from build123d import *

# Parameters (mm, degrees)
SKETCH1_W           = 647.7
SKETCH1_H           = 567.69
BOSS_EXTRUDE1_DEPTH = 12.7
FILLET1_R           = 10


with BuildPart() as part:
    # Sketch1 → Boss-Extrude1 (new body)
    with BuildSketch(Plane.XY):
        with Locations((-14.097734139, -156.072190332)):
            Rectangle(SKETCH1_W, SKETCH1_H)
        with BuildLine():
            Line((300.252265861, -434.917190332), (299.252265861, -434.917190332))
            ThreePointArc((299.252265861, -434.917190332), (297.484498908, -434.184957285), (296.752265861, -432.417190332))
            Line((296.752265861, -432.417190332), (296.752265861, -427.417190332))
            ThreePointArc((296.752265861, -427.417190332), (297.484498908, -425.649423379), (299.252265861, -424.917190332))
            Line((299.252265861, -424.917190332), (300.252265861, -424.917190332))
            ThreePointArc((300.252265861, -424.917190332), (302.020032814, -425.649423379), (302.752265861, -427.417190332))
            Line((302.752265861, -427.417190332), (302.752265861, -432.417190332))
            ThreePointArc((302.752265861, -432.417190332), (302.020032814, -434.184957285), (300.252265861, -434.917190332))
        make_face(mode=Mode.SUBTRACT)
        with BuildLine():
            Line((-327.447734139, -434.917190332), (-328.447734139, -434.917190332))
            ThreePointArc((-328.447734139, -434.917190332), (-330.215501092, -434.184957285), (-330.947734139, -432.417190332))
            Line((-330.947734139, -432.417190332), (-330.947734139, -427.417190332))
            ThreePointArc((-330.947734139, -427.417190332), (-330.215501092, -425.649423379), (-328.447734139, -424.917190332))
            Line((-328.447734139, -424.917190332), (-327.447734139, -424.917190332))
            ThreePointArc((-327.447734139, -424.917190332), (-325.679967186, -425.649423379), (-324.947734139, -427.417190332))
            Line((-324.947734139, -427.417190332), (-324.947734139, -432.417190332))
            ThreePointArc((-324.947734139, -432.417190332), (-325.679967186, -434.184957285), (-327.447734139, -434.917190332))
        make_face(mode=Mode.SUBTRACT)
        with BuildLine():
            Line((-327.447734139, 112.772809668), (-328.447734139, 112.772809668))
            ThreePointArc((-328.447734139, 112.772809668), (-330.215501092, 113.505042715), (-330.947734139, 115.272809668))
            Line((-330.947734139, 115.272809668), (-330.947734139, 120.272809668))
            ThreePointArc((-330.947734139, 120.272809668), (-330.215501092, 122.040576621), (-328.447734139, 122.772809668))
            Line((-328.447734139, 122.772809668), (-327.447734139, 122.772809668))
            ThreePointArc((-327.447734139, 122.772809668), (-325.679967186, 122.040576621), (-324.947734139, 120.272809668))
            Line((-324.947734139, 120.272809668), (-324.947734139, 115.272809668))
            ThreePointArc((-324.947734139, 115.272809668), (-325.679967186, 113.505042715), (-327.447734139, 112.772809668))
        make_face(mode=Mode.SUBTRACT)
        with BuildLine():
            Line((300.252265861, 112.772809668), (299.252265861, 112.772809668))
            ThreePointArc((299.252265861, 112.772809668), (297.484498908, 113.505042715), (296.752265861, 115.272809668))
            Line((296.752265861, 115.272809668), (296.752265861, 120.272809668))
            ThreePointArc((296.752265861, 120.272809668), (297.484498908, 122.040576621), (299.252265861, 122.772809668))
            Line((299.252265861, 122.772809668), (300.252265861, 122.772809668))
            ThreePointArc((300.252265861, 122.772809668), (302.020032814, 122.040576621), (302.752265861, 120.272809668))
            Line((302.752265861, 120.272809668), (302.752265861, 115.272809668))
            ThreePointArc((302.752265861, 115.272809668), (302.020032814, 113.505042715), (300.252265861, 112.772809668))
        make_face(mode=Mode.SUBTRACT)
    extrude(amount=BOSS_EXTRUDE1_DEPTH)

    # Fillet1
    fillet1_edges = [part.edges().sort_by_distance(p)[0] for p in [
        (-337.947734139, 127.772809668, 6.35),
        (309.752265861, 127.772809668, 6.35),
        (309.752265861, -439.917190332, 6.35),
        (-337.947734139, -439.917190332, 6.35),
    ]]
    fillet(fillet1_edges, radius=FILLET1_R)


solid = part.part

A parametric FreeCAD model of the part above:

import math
import FreeCAD as App
import Part
import Sketcher

V = App.Vector


def edges_at(feature, points):
    """Names of the edges that pass closest to the given points."""
    edges = feature.Shape.Edges
    near = lambda p: min(range(len(edges)), key=lambda i: edges[i].distToShape(Part.Vertex(*p))[0])
    return sorted({f"Edge{near(p) + 1}" for p in points})

doc = App.newDocument("Part")
body = doc.addObject("PartDesign::Body", "Body")

sketch1 = body.newObject("Sketcher::SketchObject", "Sketch")
sketch1.AttachmentSupport = (doc.getObject("XY_Plane"), [""])
sketch1.MapMode = "FlatFace"
sketch1.addGeometry([
    Part.LineSegment(V(-337.9, 127.8, 0), V(-337.9, -439.9, 0)),
    Part.LineSegment(V(-337.9, -439.9, 0), V(309.8, -439.9, 0)),
    Part.LineSegment(V(309.8, -439.9, 0), V(309.8, 127.8, 0)),
    Part.LineSegment(V(309.8, 127.8, 0), V(-337.9, 127.8, 0)),
    Part.ArcOfCircle(Part.Circle(V(-327.4, -432.4, 0), V(0, 0, 1), 2.5), math.radians(-90), math.radians(0)),
    Part.LineSegment(V(-327.4, -434.9, 0), V(-328.4, -434.9, 0)),
    Part.ArcOfCircle(Part.Circle(V(-328.4, -432.4, 0), V(0, 0, 1), 2.5), math.radians(180), math.radians(270)),
    Part.LineSegment(V(-330.9, -432.4, 0), V(-330.9, -427.4, 0)),
    Part.ArcOfCircle(Part.Circle(V(-328.4, -427.4, 0), V(0, 0, 1), 2.5), math.radians(90), math.radians(180)),
    Part.LineSegment(V(-328.4, -424.9, 0), V(-327.4, -424.9, 0)),
    Part.ArcOfCircle(Part.Circle(V(-327.4, -427.4, 0), V(0, 0, 1), 2.5), math.radians(0), math.radians(90)),
    Part.LineSegment(V(-324.9, -427.4, 0), V(-324.9, -432.4, 0)),
    Part.ArcOfCircle(Part.Circle(V(300.3, -432.4, 0), V(0, 0, 1), 2.5), math.radians(-90), math.radians(0)),
    Part.LineSegment(V(300.3, -434.9, 0), V(299.3, -434.9, 0)),
    Part.ArcOfCircle(Part.Circle(V(299.3, -432.4, 0), V(0, 0, 1), 2.5), math.radians(180), math.radians(270)),
    Part.LineSegment(V(296.8, -432.4, 0), V(296.8, -427.4, 0)),
    Part.ArcOfCircle(Part.Circle(V(299.3, -427.4, 0), V(0, 0, 1), 2.5), math.radians(90), math.radians(180)),
    Part.LineSegment(V(299.3, -424.9, 0), V(300.3, -424.9, 0)),
    Part.ArcOfCircle(Part.Circle(V(300.3, -427.4, 0), V(0, 0, 1), 2.5), math.radians(0), math.radians(90)),
    Part.LineSegment(V(302.8, -427.4, 0), V(302.8, -432.4, 0)),
    Part.ArcOfCircle(Part.Circle(V(-327.4, 115.3, 0), V(0, 0, 1), 2.5), math.radians(-90), math.radians(0)),
    Part.LineSegment(V(-327.4, 112.8, 0), V(-328.4, 112.8, 0)),
    Part.ArcOfCircle(Part.Circle(V(-328.4, 115.3, 0), V(0, 0, 1), 2.5), math.radians(180), math.radians(270)),
    Part.LineSegment(V(-330.9, 115.3, 0), V(-330.9, 120.3, 0)),
    Part.ArcOfCircle(Part.Circle(V(-328.4, 120.3, 0), V(0, 0, 1), 2.5), math.radians(90), math.radians(180)),
    Part.LineSegment(V(-328.4, 122.8, 0), V(-327.4, 122.8, 0)),
    Part.ArcOfCircle(Part.Circle(V(-327.4, 120.3, 0), V(0, 0, 1), 2.5), math.radians(0), math.radians(90)),
    Part.LineSegment(V(-324.9, 120.3, 0), V(-324.9, 115.3, 0)),
    Part.ArcOfCircle(Part.Circle(V(300.3, 115.3, 0), V(0, 0, 1), 2.5), math.radians(-90), math.radians(0)),
    Part.LineSegment(V(300.3, 112.8, 0), V(299.3, 112.8, 0)),
    Part.ArcOfCircle(Part.Circle(V(299.3, 115.3, 0), V(0, 0, 1), 2.5), math.radians(180), math.radians(270)),
    Part.LineSegment(V(296.8, 115.3, 0), V(296.8, 120.3, 0)),
    Part.ArcOfCircle(Part.Circle(V(299.3, 120.3, 0), V(0, 0, 1), 2.5), math.radians(90), math.radians(180)),
    Part.LineSegment(V(299.3, 122.8, 0), V(300.3, 122.8, 0)),
    Part.ArcOfCircle(Part.Circle(V(300.3, 120.3, 0), V(0, 0, 1), 2.5), math.radians(0), math.radians(90)),
    Part.LineSegment(V(302.8, 120.3, 0), V(302.8, 115.3, 0)),
], False)
sketch1.addConstraint([
    Sketcher.Constraint("Coincident", 0, 2, 1, 1),
    Sketcher.Constraint("Coincident", 1, 2, 2, 1),
    Sketcher.Constraint("Coincident", 2, 2, 3, 1),
    Sketcher.Constraint("Coincident", 3, 2, 0, 1),
    Sketcher.Constraint("Tangent", 4, 1, 5, 1),
    Sketcher.Constraint("Tangent", 5, 2, 6, 2),
    Sketcher.Constraint("Tangent", 6, 1, 7, 1),
    Sketcher.Constraint("Tangent", 7, 2, 8, 2),
    Sketcher.Constraint("Tangent", 8, 1, 9, 1),
    Sketcher.Constraint("Tangent", 9, 2, 10, 2),
    Sketcher.Constraint("Tangent", 10, 1, 11, 1),
    Sketcher.Constraint("Tangent", 11, 2, 4, 2),
    Sketcher.Constraint("Tangent", 12, 1, 13, 1),
    Sketcher.Constraint("Tangent", 13, 2, 14, 2),
    Sketcher.Constraint("Tangent", 14, 1, 15, 1),
    Sketcher.Constraint("Tangent", 15, 2, 16, 2),
    Sketcher.Constraint("Tangent", 16, 1, 17, 1),
    Sketcher.Constraint("Tangent", 17, 2, 18, 2),
    Sketcher.Constraint("Tangent", 18, 1, 19, 1),
    Sketcher.Constraint("Tangent", 19, 2, 12, 2),
    Sketcher.Constraint("Tangent", 20, 1, 21, 1),
    Sketcher.Constraint("Tangent", 21, 2, 22, 2),
    Sketcher.Constraint("Tangent", 22, 1, 23, 1),
    Sketcher.Constraint("Tangent", 23, 2, 24, 2),
    Sketcher.Constraint("Tangent", 24, 1, 25, 1),
    Sketcher.Constraint("Tangent", 25, 2, 26, 2),
    Sketcher.Constraint("Tangent", 26, 1, 27, 1),
    Sketcher.Constraint("Tangent", 27, 2, 20, 2),
    Sketcher.Constraint("Tangent", 28, 1, 29, 1),
    Sketcher.Constraint("Tangent", 29, 2, 30, 2),
    Sketcher.Constraint("Tangent", 30, 1, 31, 1),
    Sketcher.Constraint("Tangent", 31, 2, 32, 2),
    Sketcher.Constraint("Tangent", 32, 1, 33, 1),
    Sketcher.Constraint("Tangent", 33, 2, 34, 2),
    Sketcher.Constraint("Tangent", 34, 1, 35, 1),
    Sketcher.Constraint("Tangent", 35, 2, 28, 2),
    Sketcher.Constraint("Vertical", 0),
    Sketcher.Constraint("Horizontal", 1),
    Sketcher.Constraint("Vertical", 2),
    Sketcher.Constraint("Horizontal", 3),
    Sketcher.Constraint("Horizontal", 5),
    Sketcher.Constraint("Vertical", 7),
    Sketcher.Constraint("Horizontal", 9),
    Sketcher.Constraint("Vertical", 11),
    Sketcher.Constraint("Horizontal", 13),
    Sketcher.Constraint("Vertical", 15),
    Sketcher.Constraint("Horizontal", 17),
    Sketcher.Constraint("Vertical", 19),
    Sketcher.Constraint("Horizontal", 21),
    Sketcher.Constraint("Vertical", 23),
    Sketcher.Constraint("Horizontal", 25),
    Sketcher.Constraint("Vertical", 27),
    Sketcher.Constraint("Horizontal", 29),
    Sketcher.Constraint("Vertical", 31),
    Sketcher.Constraint("Horizontal", 33),
    Sketcher.Constraint("Vertical", 35),
    Sketcher.Constraint("Equal", 4, 6),
    Sketcher.Constraint("Equal", 6, 8),
    Sketcher.Constraint("Equal", 8, 10),
    Sketcher.Constraint("Equal", 10, 12),
    Sketcher.Constraint("Equal", 12, 14),
    Sketcher.Constraint("Equal", 14, 16),
    Sketcher.Constraint("Equal", 16, 18),
    Sketcher.Constraint("Equal", 18, 20),
    Sketcher.Constraint("Equal", 20, 22),
    Sketcher.Constraint("Equal", 22, 24),
    Sketcher.Constraint("Equal", 24, 26),
    Sketcher.Constraint("Equal", 26, 28),
    Sketcher.Constraint("Equal", 28, 30),
    Sketcher.Constraint("Equal", 30, 32),
    Sketcher.Constraint("Equal", 32, 34),
    Sketcher.Constraint("Horizontal", 6, 3, 12, 3),
    Sketcher.Constraint("Horizontal", 10, 3, 16, 3),
    Sketcher.Constraint("Horizontal", 22, 3, 28, 3),
    Sketcher.Constraint("Horizontal", 26, 3, 32, 3),
    Sketcher.Constraint("Vertical", 10, 3, 20, 3),
    Sketcher.Constraint("Vertical", 8, 3, 22, 3),
    Sketcher.Constraint("Vertical", 18, 3, 28, 3),
    Sketcher.Constraint("Vertical", 16, 3, 30, 3),
    Sketcher.Constraint("Equal", 9, 13),
    Sketcher.Constraint("Equal", 19, 23),
    Sketcher.Constraint("Radius", 4, 2.5),
    Sketcher.Constraint("DistanceX", 5, 2, 5, 1, 1.0),
    Sketcher.Constraint("DistanceY", 7, 1, 7, 2, 5.0),
    Sketcher.Constraint("DistanceX", 1, 1, 1, 2, 647.7),
    Sketcher.Constraint("DistanceY", 0, 2, 4, 1, 5.0),
    Sketcher.Constraint("DistanceY", 20, 1, 3, 2, 15.0),
    Sketcher.Constraint("DistanceY", 0, 2, 0, 1, 567.69),
    Sketcher.Constraint("DistanceX", 4, 3, 12, 3, 627.7),
    Sketcher.Constraint("DistanceX", 0, 2, 6, 3, 9.5),
    Sketcher.Constraint("DistanceY", 4, 3, -1, 1, 432.41719),
    Sketcher.Constraint("DistanceX", 4, 3, -1, 1, 327.447734),
])
pad1 = body.newObject("PartDesign::Pad", "Pad")
pad1.Profile = sketch1
pad1.Length = 12.7
doc.recompute()

fillet = body.newObject("PartDesign::Fillet", "Fillet")
fillet.Base = (pad1, edges_at(pad1, [
    (-337.948, 127.773, 6.35),
    (309.752, 127.773, 6.35),
    (309.752, -439.917, 6.35),
    (-337.948, -439.917, 6.35),
]))
fillet.Radius = 10

doc.recompute()
